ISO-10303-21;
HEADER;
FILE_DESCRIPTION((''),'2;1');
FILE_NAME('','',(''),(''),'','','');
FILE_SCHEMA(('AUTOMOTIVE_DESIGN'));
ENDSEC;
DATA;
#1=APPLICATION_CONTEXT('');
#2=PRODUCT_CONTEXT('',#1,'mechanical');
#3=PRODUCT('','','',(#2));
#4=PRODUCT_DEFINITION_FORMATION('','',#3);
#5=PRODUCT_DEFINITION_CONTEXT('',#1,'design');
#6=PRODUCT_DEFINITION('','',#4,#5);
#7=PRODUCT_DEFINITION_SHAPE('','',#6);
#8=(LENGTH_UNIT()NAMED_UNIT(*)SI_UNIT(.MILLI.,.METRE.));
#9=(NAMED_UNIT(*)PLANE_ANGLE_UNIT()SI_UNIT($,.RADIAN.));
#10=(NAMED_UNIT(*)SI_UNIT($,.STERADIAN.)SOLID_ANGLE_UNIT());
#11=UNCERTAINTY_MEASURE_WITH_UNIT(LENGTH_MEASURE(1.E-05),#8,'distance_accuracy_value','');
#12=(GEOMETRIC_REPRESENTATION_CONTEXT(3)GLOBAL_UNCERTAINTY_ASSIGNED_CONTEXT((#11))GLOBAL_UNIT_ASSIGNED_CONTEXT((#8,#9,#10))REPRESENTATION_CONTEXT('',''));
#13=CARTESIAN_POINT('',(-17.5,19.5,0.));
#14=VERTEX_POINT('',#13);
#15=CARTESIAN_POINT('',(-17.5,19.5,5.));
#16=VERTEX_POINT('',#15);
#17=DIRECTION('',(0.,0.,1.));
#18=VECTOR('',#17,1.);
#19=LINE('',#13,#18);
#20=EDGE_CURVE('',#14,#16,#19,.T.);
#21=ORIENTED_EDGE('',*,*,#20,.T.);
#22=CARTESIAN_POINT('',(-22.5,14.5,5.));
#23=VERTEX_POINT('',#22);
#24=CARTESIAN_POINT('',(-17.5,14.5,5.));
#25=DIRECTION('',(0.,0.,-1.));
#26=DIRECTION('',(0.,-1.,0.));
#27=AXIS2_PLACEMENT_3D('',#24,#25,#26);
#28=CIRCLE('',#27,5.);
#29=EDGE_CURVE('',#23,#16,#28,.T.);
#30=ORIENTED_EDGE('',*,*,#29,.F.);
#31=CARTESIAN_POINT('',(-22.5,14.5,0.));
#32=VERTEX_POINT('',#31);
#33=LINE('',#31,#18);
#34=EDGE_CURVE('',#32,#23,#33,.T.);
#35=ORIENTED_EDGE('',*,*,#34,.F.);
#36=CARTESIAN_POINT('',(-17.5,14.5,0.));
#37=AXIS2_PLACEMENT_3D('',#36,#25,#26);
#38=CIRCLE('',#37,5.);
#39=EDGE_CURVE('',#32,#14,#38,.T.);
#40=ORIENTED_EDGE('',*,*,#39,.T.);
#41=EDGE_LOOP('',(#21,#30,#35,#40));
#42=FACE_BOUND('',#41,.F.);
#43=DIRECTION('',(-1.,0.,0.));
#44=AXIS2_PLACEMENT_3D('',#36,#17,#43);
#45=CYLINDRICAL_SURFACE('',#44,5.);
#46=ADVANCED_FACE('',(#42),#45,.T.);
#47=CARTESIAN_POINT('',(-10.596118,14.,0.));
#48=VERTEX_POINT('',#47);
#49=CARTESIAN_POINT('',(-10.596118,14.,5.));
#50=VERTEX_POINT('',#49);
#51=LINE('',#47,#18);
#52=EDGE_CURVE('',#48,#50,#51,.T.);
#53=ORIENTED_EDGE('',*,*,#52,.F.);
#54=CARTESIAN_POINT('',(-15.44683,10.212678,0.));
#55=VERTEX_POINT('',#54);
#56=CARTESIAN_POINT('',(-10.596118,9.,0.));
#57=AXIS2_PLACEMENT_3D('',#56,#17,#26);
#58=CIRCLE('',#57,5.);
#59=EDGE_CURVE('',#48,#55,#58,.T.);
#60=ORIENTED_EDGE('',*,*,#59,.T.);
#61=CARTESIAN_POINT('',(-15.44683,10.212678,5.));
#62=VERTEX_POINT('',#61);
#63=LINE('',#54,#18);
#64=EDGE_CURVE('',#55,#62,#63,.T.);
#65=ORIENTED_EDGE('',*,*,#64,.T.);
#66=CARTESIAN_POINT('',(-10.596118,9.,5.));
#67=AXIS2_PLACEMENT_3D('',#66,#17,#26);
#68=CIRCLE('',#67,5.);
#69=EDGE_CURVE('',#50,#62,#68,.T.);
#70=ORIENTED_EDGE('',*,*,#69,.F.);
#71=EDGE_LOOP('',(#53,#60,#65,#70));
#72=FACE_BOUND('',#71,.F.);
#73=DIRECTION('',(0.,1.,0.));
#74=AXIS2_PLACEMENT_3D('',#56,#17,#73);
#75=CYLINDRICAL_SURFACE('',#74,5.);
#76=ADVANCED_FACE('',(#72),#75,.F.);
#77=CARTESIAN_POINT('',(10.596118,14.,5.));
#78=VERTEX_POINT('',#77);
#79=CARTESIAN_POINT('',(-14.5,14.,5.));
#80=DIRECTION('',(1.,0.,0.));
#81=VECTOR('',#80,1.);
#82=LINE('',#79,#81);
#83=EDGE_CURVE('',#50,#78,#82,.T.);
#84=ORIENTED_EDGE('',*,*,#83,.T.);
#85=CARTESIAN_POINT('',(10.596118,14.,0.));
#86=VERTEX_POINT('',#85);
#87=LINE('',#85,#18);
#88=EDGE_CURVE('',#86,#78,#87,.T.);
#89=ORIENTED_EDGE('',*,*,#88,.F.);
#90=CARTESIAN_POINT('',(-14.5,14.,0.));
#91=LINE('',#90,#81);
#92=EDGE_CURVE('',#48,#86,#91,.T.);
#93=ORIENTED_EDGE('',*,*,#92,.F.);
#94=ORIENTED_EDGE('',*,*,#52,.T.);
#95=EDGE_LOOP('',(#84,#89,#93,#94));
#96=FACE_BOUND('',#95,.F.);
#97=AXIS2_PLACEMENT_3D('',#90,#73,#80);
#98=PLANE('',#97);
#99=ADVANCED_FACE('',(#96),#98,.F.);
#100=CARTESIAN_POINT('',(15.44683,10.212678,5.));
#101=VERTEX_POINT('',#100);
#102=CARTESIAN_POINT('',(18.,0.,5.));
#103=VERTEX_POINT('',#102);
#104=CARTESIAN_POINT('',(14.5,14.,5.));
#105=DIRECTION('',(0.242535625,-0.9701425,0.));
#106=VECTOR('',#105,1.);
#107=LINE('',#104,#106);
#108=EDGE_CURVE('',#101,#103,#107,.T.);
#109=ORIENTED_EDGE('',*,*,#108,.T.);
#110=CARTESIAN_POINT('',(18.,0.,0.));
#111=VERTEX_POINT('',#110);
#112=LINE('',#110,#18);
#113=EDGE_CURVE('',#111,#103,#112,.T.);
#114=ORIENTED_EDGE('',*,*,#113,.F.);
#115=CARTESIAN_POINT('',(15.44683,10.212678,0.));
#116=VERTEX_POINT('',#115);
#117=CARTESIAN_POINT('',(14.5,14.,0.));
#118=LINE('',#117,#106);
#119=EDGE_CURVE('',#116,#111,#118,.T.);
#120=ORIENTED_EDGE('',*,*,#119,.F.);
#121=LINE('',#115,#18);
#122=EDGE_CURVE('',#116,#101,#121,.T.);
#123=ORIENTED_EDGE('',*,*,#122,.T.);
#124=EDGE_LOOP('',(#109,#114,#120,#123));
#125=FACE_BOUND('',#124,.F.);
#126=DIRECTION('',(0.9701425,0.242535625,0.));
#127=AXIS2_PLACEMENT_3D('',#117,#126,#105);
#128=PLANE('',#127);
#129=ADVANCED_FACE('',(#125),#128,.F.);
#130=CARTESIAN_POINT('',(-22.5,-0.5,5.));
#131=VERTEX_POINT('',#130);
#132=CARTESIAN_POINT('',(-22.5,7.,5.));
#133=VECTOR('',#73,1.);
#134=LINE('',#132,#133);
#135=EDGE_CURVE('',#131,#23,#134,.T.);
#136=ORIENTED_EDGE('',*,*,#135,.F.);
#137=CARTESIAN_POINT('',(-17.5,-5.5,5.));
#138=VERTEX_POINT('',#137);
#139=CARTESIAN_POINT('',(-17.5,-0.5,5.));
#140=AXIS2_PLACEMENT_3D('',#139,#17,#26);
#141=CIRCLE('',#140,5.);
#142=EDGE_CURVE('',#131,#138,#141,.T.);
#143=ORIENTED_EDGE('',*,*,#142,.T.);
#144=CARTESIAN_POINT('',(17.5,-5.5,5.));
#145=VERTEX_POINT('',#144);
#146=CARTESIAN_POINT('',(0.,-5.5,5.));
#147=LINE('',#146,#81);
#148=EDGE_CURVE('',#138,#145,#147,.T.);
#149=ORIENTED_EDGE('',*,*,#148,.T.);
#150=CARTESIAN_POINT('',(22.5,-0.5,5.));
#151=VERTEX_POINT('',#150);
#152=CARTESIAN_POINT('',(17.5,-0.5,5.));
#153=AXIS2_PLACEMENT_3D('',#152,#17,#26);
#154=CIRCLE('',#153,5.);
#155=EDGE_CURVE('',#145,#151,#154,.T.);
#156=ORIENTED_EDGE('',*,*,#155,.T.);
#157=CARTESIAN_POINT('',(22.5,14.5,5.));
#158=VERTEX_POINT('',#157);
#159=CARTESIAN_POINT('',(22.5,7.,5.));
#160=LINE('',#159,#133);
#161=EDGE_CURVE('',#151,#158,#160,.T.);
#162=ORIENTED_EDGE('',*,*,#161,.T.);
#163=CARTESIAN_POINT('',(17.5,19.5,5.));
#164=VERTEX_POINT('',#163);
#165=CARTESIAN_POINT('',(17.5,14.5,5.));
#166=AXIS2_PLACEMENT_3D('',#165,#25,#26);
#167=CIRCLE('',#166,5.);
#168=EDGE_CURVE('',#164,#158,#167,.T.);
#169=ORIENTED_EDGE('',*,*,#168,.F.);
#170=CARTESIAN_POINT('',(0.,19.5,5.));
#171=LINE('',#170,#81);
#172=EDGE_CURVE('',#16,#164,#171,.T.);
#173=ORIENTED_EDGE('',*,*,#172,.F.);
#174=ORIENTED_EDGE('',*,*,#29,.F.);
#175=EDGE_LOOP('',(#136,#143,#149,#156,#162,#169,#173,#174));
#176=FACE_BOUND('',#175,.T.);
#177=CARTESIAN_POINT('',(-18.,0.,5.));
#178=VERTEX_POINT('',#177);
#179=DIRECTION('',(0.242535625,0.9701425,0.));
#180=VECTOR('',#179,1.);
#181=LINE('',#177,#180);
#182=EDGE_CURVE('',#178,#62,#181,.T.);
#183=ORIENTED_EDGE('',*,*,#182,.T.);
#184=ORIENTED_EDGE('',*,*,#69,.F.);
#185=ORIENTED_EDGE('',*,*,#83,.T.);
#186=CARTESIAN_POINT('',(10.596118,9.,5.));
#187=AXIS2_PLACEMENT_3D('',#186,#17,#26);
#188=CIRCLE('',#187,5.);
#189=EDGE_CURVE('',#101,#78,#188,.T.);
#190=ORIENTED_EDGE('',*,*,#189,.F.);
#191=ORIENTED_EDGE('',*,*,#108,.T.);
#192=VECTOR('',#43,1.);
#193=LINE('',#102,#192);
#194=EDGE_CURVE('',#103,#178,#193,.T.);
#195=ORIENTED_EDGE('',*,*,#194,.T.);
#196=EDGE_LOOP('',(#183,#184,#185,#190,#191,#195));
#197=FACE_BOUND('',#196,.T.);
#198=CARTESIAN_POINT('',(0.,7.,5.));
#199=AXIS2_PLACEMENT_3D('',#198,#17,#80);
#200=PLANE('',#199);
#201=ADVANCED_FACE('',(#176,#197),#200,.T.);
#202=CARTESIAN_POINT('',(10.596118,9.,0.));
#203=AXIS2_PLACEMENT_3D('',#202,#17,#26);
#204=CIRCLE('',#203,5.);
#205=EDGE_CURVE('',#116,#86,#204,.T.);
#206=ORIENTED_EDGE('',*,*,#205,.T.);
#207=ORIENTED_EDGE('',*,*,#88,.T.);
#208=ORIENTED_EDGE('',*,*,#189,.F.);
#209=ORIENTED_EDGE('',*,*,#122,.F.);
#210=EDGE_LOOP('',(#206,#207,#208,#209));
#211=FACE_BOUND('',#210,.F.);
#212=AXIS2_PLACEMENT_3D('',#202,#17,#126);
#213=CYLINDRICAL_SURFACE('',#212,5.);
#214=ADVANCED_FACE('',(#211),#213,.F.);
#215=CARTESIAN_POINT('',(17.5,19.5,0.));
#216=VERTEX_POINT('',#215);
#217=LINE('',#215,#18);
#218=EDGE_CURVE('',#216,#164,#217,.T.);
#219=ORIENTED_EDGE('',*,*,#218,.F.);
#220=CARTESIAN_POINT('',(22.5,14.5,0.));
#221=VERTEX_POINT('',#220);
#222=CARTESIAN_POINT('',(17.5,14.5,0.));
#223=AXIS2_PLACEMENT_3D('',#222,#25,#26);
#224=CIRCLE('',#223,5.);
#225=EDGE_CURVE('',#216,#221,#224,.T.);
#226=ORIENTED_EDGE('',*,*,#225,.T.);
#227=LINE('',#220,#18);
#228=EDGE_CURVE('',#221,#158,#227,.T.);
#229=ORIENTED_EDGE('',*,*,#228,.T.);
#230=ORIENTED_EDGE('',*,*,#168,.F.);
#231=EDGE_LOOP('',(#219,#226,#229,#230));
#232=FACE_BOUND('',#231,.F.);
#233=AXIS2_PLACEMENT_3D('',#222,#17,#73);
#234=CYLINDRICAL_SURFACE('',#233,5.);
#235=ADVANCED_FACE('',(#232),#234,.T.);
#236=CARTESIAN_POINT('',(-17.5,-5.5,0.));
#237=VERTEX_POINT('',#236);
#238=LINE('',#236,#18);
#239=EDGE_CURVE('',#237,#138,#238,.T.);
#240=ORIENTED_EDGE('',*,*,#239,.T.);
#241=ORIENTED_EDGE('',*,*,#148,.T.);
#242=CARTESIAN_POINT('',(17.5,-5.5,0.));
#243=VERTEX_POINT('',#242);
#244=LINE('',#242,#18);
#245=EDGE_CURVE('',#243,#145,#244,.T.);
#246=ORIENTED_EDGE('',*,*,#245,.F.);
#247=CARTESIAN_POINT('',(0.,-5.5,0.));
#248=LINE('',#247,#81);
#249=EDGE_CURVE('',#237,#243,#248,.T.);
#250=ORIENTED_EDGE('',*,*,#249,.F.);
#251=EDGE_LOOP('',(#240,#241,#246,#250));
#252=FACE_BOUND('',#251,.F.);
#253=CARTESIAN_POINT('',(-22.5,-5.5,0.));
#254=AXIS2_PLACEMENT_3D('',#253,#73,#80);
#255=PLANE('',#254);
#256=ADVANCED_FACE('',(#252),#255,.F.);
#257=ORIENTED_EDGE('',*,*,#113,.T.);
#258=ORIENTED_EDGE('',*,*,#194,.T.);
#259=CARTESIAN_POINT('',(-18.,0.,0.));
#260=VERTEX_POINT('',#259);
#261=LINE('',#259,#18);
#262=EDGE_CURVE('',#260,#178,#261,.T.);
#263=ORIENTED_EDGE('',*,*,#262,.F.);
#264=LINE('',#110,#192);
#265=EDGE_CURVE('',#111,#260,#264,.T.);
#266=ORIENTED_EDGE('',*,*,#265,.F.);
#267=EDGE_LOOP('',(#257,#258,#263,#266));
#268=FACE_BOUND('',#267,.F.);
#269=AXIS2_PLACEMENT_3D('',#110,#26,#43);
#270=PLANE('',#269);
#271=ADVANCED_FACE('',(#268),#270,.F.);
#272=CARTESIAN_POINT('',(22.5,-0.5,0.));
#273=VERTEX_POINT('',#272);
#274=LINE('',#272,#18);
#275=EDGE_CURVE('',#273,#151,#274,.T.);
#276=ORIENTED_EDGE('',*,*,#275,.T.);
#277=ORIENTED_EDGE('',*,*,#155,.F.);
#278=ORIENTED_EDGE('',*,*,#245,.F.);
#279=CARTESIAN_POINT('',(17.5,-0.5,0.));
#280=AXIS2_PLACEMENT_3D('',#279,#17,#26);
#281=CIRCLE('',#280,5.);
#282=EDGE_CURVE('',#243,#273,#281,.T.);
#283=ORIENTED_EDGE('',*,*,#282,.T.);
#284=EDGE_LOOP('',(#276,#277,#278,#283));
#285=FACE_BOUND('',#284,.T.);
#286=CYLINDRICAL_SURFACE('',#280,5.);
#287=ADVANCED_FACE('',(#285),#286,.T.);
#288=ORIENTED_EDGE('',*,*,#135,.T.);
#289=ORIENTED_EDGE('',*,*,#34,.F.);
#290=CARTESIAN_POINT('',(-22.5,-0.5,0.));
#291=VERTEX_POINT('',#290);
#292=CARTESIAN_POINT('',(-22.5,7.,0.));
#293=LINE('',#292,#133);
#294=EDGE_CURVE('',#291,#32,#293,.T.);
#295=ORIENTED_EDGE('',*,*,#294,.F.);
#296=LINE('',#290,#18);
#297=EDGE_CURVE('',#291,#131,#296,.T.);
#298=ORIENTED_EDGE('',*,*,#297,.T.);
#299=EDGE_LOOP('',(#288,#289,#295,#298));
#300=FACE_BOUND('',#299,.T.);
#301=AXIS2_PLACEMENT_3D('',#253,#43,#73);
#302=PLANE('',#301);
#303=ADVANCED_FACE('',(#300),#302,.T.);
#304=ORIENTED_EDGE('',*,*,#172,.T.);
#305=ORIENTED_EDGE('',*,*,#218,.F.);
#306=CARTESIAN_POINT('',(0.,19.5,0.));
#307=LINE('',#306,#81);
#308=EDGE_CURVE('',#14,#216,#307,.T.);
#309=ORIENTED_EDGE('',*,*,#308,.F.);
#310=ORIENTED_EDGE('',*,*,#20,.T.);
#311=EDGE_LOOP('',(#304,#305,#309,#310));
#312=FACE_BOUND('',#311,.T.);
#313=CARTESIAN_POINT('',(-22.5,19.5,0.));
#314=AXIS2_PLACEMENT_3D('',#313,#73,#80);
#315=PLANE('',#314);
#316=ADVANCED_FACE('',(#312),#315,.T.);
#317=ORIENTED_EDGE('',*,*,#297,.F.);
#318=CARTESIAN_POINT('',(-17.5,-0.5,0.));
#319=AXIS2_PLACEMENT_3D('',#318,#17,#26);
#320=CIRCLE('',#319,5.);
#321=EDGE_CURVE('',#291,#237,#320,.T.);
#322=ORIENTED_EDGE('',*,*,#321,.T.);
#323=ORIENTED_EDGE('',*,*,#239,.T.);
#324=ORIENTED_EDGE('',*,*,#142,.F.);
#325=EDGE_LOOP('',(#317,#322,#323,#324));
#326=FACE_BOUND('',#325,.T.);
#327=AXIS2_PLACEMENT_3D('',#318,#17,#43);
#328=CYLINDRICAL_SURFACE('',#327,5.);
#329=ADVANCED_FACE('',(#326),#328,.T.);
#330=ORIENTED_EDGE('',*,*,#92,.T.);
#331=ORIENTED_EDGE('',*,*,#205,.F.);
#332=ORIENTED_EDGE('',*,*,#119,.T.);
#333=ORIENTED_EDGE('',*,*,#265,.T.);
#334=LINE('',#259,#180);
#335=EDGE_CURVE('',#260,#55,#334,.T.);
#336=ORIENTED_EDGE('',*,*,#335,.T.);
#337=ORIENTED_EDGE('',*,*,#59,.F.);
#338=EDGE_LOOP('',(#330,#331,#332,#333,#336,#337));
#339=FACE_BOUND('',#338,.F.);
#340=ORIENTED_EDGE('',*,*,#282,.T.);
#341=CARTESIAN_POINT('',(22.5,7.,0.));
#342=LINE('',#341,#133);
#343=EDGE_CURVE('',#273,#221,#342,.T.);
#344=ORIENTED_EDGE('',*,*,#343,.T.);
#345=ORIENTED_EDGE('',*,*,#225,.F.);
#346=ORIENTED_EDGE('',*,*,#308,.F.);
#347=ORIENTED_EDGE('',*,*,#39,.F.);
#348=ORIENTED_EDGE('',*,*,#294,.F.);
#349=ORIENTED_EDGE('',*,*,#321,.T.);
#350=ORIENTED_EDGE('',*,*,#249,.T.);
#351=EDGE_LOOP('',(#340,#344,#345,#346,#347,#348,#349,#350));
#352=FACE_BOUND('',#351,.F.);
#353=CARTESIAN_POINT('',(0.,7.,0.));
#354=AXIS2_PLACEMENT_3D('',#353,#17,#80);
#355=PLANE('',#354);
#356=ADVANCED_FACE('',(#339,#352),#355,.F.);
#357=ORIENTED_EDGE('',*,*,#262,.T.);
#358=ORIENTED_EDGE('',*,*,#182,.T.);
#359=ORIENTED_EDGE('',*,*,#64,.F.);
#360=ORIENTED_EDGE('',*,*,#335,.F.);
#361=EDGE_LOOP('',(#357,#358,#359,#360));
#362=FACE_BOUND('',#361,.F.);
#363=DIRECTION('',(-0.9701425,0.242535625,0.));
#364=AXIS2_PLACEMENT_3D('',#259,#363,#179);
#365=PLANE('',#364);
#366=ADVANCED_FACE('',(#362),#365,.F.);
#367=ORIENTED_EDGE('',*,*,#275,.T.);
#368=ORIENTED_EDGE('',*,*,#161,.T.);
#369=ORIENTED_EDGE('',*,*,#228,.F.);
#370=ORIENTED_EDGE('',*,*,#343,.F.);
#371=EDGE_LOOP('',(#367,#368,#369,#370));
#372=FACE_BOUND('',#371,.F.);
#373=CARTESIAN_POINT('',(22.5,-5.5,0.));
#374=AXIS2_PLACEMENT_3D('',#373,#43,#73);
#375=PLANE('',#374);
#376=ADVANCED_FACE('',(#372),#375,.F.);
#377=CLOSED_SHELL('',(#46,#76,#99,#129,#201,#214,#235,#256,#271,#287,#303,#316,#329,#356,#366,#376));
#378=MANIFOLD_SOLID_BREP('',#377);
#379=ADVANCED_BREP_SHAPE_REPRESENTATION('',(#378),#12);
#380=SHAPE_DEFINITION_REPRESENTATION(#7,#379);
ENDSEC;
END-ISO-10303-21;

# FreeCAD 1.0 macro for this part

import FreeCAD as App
import Part
import Sketcher

V = App.Vector


def edges_at(feature, points):
    """Names of the edges that pass closest to the given points."""
    edges = feature.Shape.Edges
    near = lambda p: min(range(len(edges)), key=lambda i: edges[i].distToShape(Part.Vertex(*p))[0])
    return sorted({f"Edge{near(p) + 1}" for p in points})

doc = App.newDocument("Part")
params = doc.addObject("Spreadsheet::Sheet", "Params")
for row, (alias, value) in enumerate([
    ("sketch1_width", "45 mm"),
    ("sketch1_width2", "36 mm"),
    ("sketch1_width3", "29 mm"),
    ("sketch1_height", "25 mm"),
    ("pad1_length", "5 mm"),
    ("fillet_radius", "5 mm"),
], start=1):
    params.set(f"A{row}", alias)
    params.set(f"B{row}", "=" + value)
    params.setAlias(f"B{row}", alias)

body = doc.addObject("PartDesign::Body", "Body")

# Sketch on XY plane
sketch1 = body.newObject("Sketcher::SketchObject", "Sketch")
sketch1.AttachmentSupport = (doc.getObject("XY_Plane"), [""])
sketch1.MapMode = "FlatFace"
sketch1.addGeometry(Part.LineSegment(V(-22, 20, 0), V(-22, -6, 0)), False)
sketch1.addGeometry(Part.LineSegment(V(-22, -6, 0), V(22, -6, 0)), False)
sketch1.addGeometry(Part.LineSegment(V(22, -6, 0), V(22, 20, 0)), False)
sketch1.addGeometry(Part.LineSegment(V(22, 20, 0), V(-22, 20, 0)), False)
sketch1.addGeometry(Part.LineSegment(V(14, 14, 0), V(18, 0, 0)), False)
sketch1.addGeometry(Part.LineSegment(V(18, 0, 0), V(-18, 0, 0)), False)
sketch1.addGeometry(Part.LineSegment(V(-18, 0, 0), V(-14, 14, 0)), False)
sketch1.addGeometry(Part.LineSegment(V(-14, 14, 0), V(14, 14, 0)), False)
sketch1.addConstraint(Sketcher.Constraint("Coincident", 0, 2, 1, 1))
sketch1.addConstraint(Sketcher.Constraint("Coincident", 1, 2, 2, 1))
sketch1.addConstraint(Sketcher.Constraint("Coincident", 2, 2, 3, 1))
sketch1.addConstraint(Sketcher.Constraint("Coincident", 3, 2, 0, 1))
sketch1.addConstraint(Sketcher.Constraint("Coincident", 4, 2, 5, 1))
sketch1.addConstraint(Sketcher.Constraint("Coincident", 5, 2, 6, 1))
sketch1.addConstraint(Sketcher.Constraint("Coincident", 6, 2, 7, 1))
sketch1.addConstraint(Sketcher.Constraint("Coincident", 7, 2, 4, 1))
sketch1.addConstraint(Sketcher.Constraint("Vertical", 0))
sketch1.addConstraint(Sketcher.Constraint("Horizontal", 1))
sketch1.addConstraint(Sketcher.Constraint("Vertical", 2))
sketch1.addConstraint(Sketcher.Constraint("Horizontal", 3))
sketch1.addConstraint(Sketcher.Constraint("Horizontal", 5))
sketch1.addConstraint(Sketcher.Constraint("Horizontal", 7))
sketch1.addConstraint(Sketcher.Constraint("Symmetric", 4, 2, 5, 2, -1, 1))
sketch1.addConstraint(Sketcher.Constraint("Equal", 4, 6))
sketch1.addConstraint(Sketcher.Constraint("DistanceX", 1, 1, 1, 2, 45.0))
sketch1.addConstraint(Sketcher.Constraint("DistanceX", 5, 2, 5, 1, 36.0))
sketch1.addConstraint(Sketcher.Constraint("DistanceX", 7, 1, 7, 2, 29.0))
sketch1.addConstraint(Sketcher.Constraint("DistanceY", 0, 2, 0, 1, 25.0))
sketch1.addConstraint(Sketcher.Constraint("DistanceY", -1, 1, 6, 2, 14.0))
sketch1.addConstraint(Sketcher.Constraint("DistanceX", 3, 2, 6, 2, 8.0))
sketch1.addConstraint(Sketcher.Constraint("DistanceY", 0, 2, -1, 1, 5.5))
sketch1.setExpression("Constraints[16]", "Params.sketch1_width")
sketch1.setExpression("Constraints[17]", "Params.sketch1_width2")
sketch1.setExpression("Constraints[18]", "Params.sketch1_width3")
sketch1.setExpression("Constraints[19]", "Params.sketch1_height")
pad1 = body.newObject("PartDesign::Pad", "Pad")
pad1.Profile = sketch1
pad1.setExpression("Length", "Params.pad1_length")
doc.recompute()

fillet = body.newObject("PartDesign::Fillet", "Fillet")
fillet.Base = (pad1, edges_at(pad1, [
    (-22.5, 19.5, 2.5),
    (22.5, 19.5, 2.5),
    (-22.5, -5.5, 2.5),
    (22.5, -5.5, 2.5),
    (-14.5, 14, 2.5),
    (14.5, 14, 2.5),
]))
fillet.setExpression("Radius", "Params.fillet_radius")

doc.recompute()
